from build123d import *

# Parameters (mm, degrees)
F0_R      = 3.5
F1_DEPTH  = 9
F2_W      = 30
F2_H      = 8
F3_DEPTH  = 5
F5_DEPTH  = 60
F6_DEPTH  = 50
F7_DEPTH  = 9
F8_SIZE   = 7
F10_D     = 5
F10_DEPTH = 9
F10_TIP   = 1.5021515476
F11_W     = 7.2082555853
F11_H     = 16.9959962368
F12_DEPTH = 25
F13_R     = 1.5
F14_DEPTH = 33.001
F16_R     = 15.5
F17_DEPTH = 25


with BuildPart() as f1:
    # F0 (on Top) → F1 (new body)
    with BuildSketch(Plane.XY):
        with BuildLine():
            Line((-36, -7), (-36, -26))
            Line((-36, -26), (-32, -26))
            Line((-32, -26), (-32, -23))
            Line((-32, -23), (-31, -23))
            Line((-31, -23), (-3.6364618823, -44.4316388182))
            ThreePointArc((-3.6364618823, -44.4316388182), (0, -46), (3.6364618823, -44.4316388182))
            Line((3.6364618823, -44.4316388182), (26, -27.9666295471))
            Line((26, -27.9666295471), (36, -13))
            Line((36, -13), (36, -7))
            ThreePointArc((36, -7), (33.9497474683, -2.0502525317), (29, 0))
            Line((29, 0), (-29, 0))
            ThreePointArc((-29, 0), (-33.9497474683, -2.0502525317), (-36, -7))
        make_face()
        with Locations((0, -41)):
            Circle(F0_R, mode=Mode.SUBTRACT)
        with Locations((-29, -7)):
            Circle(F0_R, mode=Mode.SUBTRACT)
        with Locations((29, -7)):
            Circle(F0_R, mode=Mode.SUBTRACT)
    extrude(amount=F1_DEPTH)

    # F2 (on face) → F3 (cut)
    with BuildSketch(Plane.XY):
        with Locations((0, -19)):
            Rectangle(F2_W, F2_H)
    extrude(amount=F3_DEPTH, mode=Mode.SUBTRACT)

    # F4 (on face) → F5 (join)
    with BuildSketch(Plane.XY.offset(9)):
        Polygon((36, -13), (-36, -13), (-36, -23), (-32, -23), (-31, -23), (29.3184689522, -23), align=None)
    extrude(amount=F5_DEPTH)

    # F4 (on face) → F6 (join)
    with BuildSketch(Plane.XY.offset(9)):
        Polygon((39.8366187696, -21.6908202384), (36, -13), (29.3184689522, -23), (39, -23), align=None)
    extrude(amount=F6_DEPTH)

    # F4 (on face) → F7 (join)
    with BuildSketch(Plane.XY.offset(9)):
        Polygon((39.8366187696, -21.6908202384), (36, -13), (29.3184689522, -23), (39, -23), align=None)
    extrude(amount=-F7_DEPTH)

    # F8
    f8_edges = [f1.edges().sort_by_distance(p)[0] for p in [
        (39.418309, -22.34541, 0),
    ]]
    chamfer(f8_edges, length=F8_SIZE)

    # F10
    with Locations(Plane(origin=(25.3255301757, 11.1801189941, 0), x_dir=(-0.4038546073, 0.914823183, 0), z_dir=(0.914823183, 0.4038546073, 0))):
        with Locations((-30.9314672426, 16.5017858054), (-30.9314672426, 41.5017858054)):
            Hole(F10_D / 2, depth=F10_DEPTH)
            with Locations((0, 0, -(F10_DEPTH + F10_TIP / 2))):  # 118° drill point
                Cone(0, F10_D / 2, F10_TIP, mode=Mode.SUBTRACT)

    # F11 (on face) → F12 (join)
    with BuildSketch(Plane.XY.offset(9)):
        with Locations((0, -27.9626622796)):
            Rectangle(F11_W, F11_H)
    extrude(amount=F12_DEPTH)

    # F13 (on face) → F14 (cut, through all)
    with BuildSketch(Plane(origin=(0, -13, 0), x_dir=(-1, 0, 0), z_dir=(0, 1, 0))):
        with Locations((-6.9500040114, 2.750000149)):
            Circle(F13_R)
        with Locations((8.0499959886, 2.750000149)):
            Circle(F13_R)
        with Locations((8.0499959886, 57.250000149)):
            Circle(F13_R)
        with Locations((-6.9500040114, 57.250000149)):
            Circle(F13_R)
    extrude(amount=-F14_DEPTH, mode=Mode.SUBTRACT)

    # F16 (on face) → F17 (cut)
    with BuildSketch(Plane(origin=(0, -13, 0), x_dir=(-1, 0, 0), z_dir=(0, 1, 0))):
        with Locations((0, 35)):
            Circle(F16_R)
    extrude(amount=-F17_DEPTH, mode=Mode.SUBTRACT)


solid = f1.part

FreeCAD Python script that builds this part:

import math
import FreeCAD as App
import Part
import Sketcher


def edges_at(feature, points):
    """Names of the edges that pass closest to the given points."""
    edges = feature.Shape.Edges
    near = lambda p: min(range(len(edges)), key=lambda i: edges[i].distToShape(Part.Vertex(*p))[0])
    return sorted({f"Edge{near(p) + 1}" for p in points})

doc = App.newDocument("Part")
body = doc.addObject("PartDesign::Body", "Body")

# Sketch on XY plane
sketch1 = doc.addObject("Sketcher::SketchObject", "Sketch")
body.addObject(sketch1)
sketch1.AttachmentSupport = (doc.XY_Plane, [""])
sketch1.MapMode = "FlatFace"
sketch1.addGeometry(Part.LineSegment(App.Vector(-36, -7, 0), App.Vector(-36, -26, 0)), False)
sketch1.addGeometry(Part.LineSegment(App.Vector(-36, -26, 0), App.Vector(-32, -26, 0)), False)
sketch1.addGeometry(Part.LineSegment(App.Vector(-32, -26, 0), App.Vector(-32, -23, 0)), False)
sketch1.addGeometry(Part.LineSegment(App.Vector(-32, -23, 0), App.Vector(-31, -23, 0)), False)
sketch1.addGeometry(Part.LineSegment(App.Vector(-31, -23, 0), App.Vector(-3.6, -44.4, 0)), False)
sketch1.addGeometry(Part.ArcOfCircle(Part.Circle(App.Vector(0, -41, 0), App.Vector(0, 0, 1), 5), math.radians(-137), math.radians(-43)), False)
sketch1.addGeometry(Part.LineSegment(App.Vector(3.6, -44.4, 0), App.Vector(26, -28, 0)), False)
sketch1.addGeometry(Part.LineSegment(App.Vector(26, -28, 0), App.Vector(36, -13, 0)), False)
sketch1.addGeometry(Part.LineSegment(App.Vector(36, -13, 0), App.Vector(36, -7, 0)), False)
sketch1.addGeometry(Part.ArcOfCircle(Part.Circle(App.Vector(29, -7, 0), App.Vector(0, 0, 1), 7), math.radians(0), math.radians(90)), False)
sketch1.addGeometry(Part.LineSegment(App.Vector(29, 0, 0), App.Vector(-29, 0, 0)), False)
sketch1.addGeometry(Part.ArcOfCircle(Part.Circle(App.Vector(-29, -7, 0), App.Vector(0, 0, 1), 7), math.radians(90), math.radians(180)), False)
sketch1.addGeometry(Part.Circle(App.Vector(0, -41, 0), App.Vector(0, 0, 1), 3.5), False)
sketch1.addGeometry(Part.Circle(App.Vector(-29, -7, 0), App.Vector(0, 0, 1), 3.5), False)
sketch1.addGeometry(Part.Circle(App.Vector(29, -7, 0), App.Vector(0, 0, 1), 3.5), False)
sketch1.addConstraint(Sketcher.Constraint("Coincident", 0, 2, 1, 1))
sketch1.addConstraint(Sketcher.Constraint("Coincident", 1, 2, 2, 1))
sketch1.addConstraint(Sketcher.Constraint("Coincident", 2, 2, 3, 1))
sketch1.addConstraint(Sketcher.Constraint("Coincident", 3, 2, 4, 1))
sketch1.addConstraint(Sketcher.Constraint("Coincident", 4, 2, 5, 1))
sketch1.addConstraint(Sketcher.Constraint("Coincident", 5, 2, 6, 1))
sketch1.addConstraint(Sketcher.Constraint("Coincident", 6, 2, 7, 1))
sketch1.addConstraint(Sketcher.Constraint("Coincident", 7, 2, 8, 1))
sketch1.addConstraint(Sketcher.Constraint("Tangent", 8, 2, 9, 1))
sketch1.addConstraint(Sketcher.Constraint("Tangent", 9, 2, 10, 1))
sketch1.addConstraint(Sketcher.Constraint("Tangent", 10, 2, 11, 1))
sketch1.addConstraint(Sketcher.Constraint("Tangent", 11, 2, 0, 1))
sketch1.addConstraint(Sketcher.Constraint("Vertical", 0))
sketch1.addConstraint(Sketcher.Constraint("Horizontal", 1))
sketch1.addConstraint(Sketcher.Constraint("Vertical", 2))
sketch1.addConstraint(Sketcher.Constraint("Horizontal", 3))
sketch1.addConstraint(Sketcher.Constraint("Vertical", 8))
sketch1.addConstraint(Sketcher.Constraint("Horizontal", 10))
sketch1.addConstraint(Sketcher.Constraint("Coincident", 12, 3, 5, 3))
sketch1.addConstraint(Sketcher.Constraint("Coincident", 13, 3, 11, 3))
sketch1.addConstraint(Sketcher.Constraint("Coincident", 14, 3, 9, 3))
sketch1.addConstraint(Sketcher.Constraint("Equal", 9, 11))
sketch1.addConstraint(Sketcher.Constraint("Equal", 12, 13))
sketch1.addConstraint(Sketcher.Constraint("Equal", 13, 14))
sketch1.addConstraint(Sketcher.Constraint("Symmetric", 9, 2, 10, 2, -1, 1))
sketch1.addConstraint(Sketcher.Constraint("Symmetric", 4, 2, 5, 2, -2))
sketch1.addConstraint(Sketcher.Constraint("Diameter", 12, 7.0))
sketch1.addConstraint(Sketcher.Constraint("Radius", 5, 5.0))
sketch1.addConstraint(Sketcher.Constraint("Radius", 9, 7.0))
sketch1.addConstraint(Sketcher.Constraint("DistanceX", 1, 1, 1, 2, 4.0))
sketch1.addConstraint(Sketcher.Constraint("DistanceX", 3, 1, 3, 2, 1.0))
sketch1.addConstraint(Sketcher.Constraint("DistanceX", 10, 2, 10, 1, 58.0))
sketch1.addConstraint(Sketcher.Constraint("DistanceY", 0, 2, 0, 1, 19.0))
sketch1.addConstraint(Sketcher.Constraint("DistanceY", 2, 1, 2, 2, 3.0))
sketch1.addConstraint(Sketcher.Constraint("DistanceY", 8, 1, 8, 2, 6.0))
sketch1.addConstraint(Sketcher.Constraint("Distance", 7, 18.0))
sketch1.addConstraint(Sketcher.Constraint("DistanceY", 5, 3, -1, 1, 41.0))
sketch1.addConstraint(Sketcher.Constraint("DistanceX", -1, 1, 6, 2, 26.0))
sketch1.addConstraint(Sketcher.Constraint("Distance", 4, 34.757422))
pad1 = doc.addObject("PartDesign::Pad", "Pad")
body.addObject(pad1)
pad1.Profile = sketch1
pad1.Length = 9

# Sketch on XY plane
sketch2 = doc.addObject("Sketcher::SketchObject", "Sketch001")
body.addObject(sketch2)
sketch2.AttachmentSupport = (doc.XY_Plane, [""])
sketch2.MapMode = "FlatFace"
sketch2.addGeometry(Part.LineSegment(App.Vector(-15, -15, 0), App.Vector(-15, -23, 0)), False)
sketch2.addGeometry(Part.LineSegment(App.Vector(-15, -23, 0), App.Vector(15, -23, 0)), False)
sketch2.addGeometry(Part.LineSegment(App.Vector(15, -23, 0), App.Vector(15, -15, 0)), False)
sketch2.addGeometry(Part.LineSegment(App.Vector(15, -15, 0), App.Vector(-15, -15, 0)), False)
sketch2.addConstraint(Sketcher.Constraint("Coincident", 0, 2, 1, 1))
sketch2.addConstraint(Sketcher.Constraint("Coincident", 1, 2, 2, 1))
sketch2.addConstraint(Sketcher.Constraint("Coincident", 2, 2, 3, 1))
sketch2.addConstraint(Sketcher.Constraint("Coincident", 3, 2, 0, 1))
sketch2.addConstraint(Sketcher.Constraint("Vertical", 0))
sketch2.addConstraint(Sketcher.Constraint("Horizontal", 1))
sketch2.addConstraint(Sketcher.Constraint("Vertical", 2))
sketch2.addConstraint(Sketcher.Constraint("Horizontal", 3))
sketch2.addConstraint(Sketcher.Constraint("DistanceX", 1, 1, 1, 2, 30.0))
sketch2.addConstraint(Sketcher.Constraint("DistanceY", 0, 2, 0, 1, 8.0))
sketch2.addConstraint(Sketcher.Constraint("DistanceX", 0, 2, -1, 1, 15.0))
sketch2.addConstraint(Sketcher.Constraint("DistanceY", 0, 2, -1, 1, 23.0))
pocket1 = doc.addObject("PartDesign::Pocket", "Pocket")
body.addObject(pocket1)
pocket1.Profile = sketch2
pocket1.Length = 5
pocket1.Reversed = True

# Sketch on XY plane
sketch3 = doc.addObject("Sketcher::SketchObject", "Sketch002")
body.addObject(sketch3)
sketch3.AttachmentSupport = (doc.XY_Plane, [""])
sketch3.MapMode = "FlatFace"
sketch3.AttachmentOffset = App.Placement(App.Vector(0, 0, 9), App.Rotation())
sketch3.addGeometry(Part.LineSegment(App.Vector(36, -13, 0), App.Vector(-36, -13, 0)), False)
sketch3.addGeometry(Part.LineSegment(App.Vector(-36, -13, 0), App.Vector(-36, -23, 0)), False)
sketch3.addGeometry(Part.LineSegment(App.Vector(-36, -23, 0), App.Vector(29, -23, 0)), False)
sketch3.addGeometry(Part.LineSegment(App.Vector(29, -23, 0), App.Vector(36, -13, 0)), False)
sketch3.addConstraint(Sketcher.Constraint("Coincident", 0, 2, 1, 1))
sketch3.addConstraint(Sketcher.Constraint("Coincident", 1, 2, 2, 1))
sketch3.addConstraint(Sketcher.Constraint("Coincident", 2, 2, 3, 1))
sketch3.addConstraint(Sketcher.Constraint("Coincident", 3, 2, 0, 1))
sketch3.addConstraint(Sketcher.Constraint("Horizontal", 0))
sketch3.addConstraint(Sketcher.Constraint("Vertical", 1))
sketch3.addConstraint(Sketcher.Constraint("Horizontal", 2))
sketch3.addConstraint(Sketcher.Constraint("DistanceX", 0, 2, 0, 1, 72.0))
sketch3.addConstraint(Sketcher.Constraint("DistanceY", 1, 2, 1, 1, 10.0))
sketch3.addConstraint(Sketcher.Constraint("DistanceX", 0, 2, -1, 1, 36.0))
sketch3.addConstraint(Sketcher.Constraint("DistanceY", 0, 2, -1, 1, 13.0))
sketch3.addConstraint(Sketcher.Constraint("DistanceX", 2, 1, 2, 2, 65.318469))
pad2 = doc.addObject("PartDesign::Pad", "Pad001")
body.addObject(pad2)
pad2.Profile = sketch3
pad2.Length = 60

# Sketch on XY plane
sketch4 = doc.addObject("Sketcher::SketchObject", "Sketch003")
body.addObject(sketch4)
sketch4.AttachmentSupport = (doc.XY_Plane, [""])
sketch4.MapMode = "FlatFace"
sketch4.AttachmentOffset = App.Placement(App.Vector(0, 0, 9), App.Rotation())
sketch4.addGeometry(Part.LineSegment(App.Vector(39.8, -21.7, 0), App.Vector(36, -13, 0)), False)
sketch4.addGeometry(Part.LineSegment(App.Vector(36, -13, 0), App.Vector(29.3, -23, 0)), False)
sketch4.addGeometry(Part.LineSegment(App.Vector(29.3, -23, 0), App.Vector(39, -23, 0)), False)
sketch4.addGeometry(Part.LineSegment(App.Vector(39, -23, 0), App.Vector(39.8, -21.7, 0)), False)
sketch4.addConstraint(Sketcher.Constraint("Coincident", 0, 2, 1, 1))
sketch4.addConstraint(Sketcher.Constraint("Coincident", 1, 2, 2, 1))
sketch4.addConstraint(Sketcher.Constraint("Coincident", 2, 2, 3, 1))
sketch4.addConstraint(Sketcher.Constraint("Coincident", 3, 2, 0, 1))
sketch4.addConstraint(Sketcher.Constraint("Horizontal", 2))
sketch4.addConstraint(Sketcher.Constraint("DistanceX", -1, 1, 0, 2, 36.0))
sketch4.addConstraint(Sketcher.Constraint("DistanceY", 0, 2, -1, 1, 13.0))
sketch4.addConstraint(Sketcher.Constraint("DistanceY", 1, 2, -1, 1, 23.0))
sketch4.addConstraint(Sketcher.Constraint("DistanceX", -1, 1, 2, 2, 39.0))
sketch4.addConstraint(Sketcher.Constraint("Distance", 0, 9.5))
sketch4.addConstraint(Sketcher.Constraint("DistanceX", 2, 1, 2, 2, 9.681531))
sketch4.addConstraint(Sketcher.Constraint("DistanceX", -1, 1, 3, 2, 39.836619))
pad3 = doc.addObject("PartDesign::Pad", "Pad002")
body.addObject(pad3)
pad3.Profile = sketch4
pad3.Length = 50

# Sketch on XY plane
sketch5 = doc.addObject("Sketcher::SketchObject", "Sketch004")
body.addObject(sketch5)
sketch5.AttachmentSupport = (doc.XY_Plane, [""])
sketch5.MapMode = "FlatFace"
sketch5.AttachmentOffset = App.Placement(App.Vector(0, 0, 9), App.Rotation())
sketch5.addGeometry(Part.LineSegment(App.Vector(39.8, -21.7, 0), App.Vector(36, -13, 0)), False)
sketch5.addGeometry(Part.LineSegment(App.Vector(36, -13, 0), App.Vector(29.3, -23, 0)), False)
sketch5.addGeometry(Part.LineSegment(App.Vector(29.3, -23, 0), App.Vector(39, -23, 0)), False)
sketch5.addGeometry(Part.LineSegment(App.Vector(39, -23, 0), App.Vector(39.8, -21.7, 0)), False)
sketch5.addConstraint(Sketcher.Constraint("Coincident", 0, 2, 1, 1))
sketch5.addConstraint(Sketcher.Constraint("Coincident", 1, 2, 2, 1))
sketch5.addConstraint(Sketcher.Constraint("Coincident", 2, 2, 3, 1))
sketch5.addConstraint(Sketcher.Constraint("Coincident", 3, 2, 0, 1))
sketch5.addConstraint(Sketcher.Constraint("Horizontal", 2))
sketch5.addConstraint(Sketcher.Constraint("DistanceX", -1, 1, 0, 2, 36.0))
sketch5.addConstraint(Sketcher.Constraint("DistanceY", 0, 2, -1, 1, 13.0))
sketch5.addConstraint(Sketcher.Constraint("DistanceY", 1, 2, -1, 1, 23.0))
sketch5.addConstraint(Sketcher.Constraint("DistanceX", -1, 1, 2, 2, 39.0))
sketch5.addConstraint(Sketcher.Constraint("Distance", 0, 9.5))
sketch5.addConstraint(Sketcher.Constraint("DistanceX", 2, 1, 2, 2, 9.681531))
sketch5.addConstraint(Sketcher.Constraint("DistanceX", -1, 1, 3, 2, 39.836619))
pad4 = doc.addObject("PartDesign::Pad", "Pad003")
body.addObject(pad4)
pad4.Profile = sketch5
pad4.Length = 9
pad4.Reversed = True
doc.recompute()

chamfer = doc.addObject("PartDesign::Chamfer", "Chamfer")
body.addObject(chamfer)
chamfer.Base = (pad4, edges_at(pad4, [(39.418, -22.345, 0)]))
chamfer.Size = 7

# Sketch on an angled plane
sketch6 = doc.addObject("Sketcher::SketchObject", "Sketch005")
body.addObject(sketch6)
sketch6.Placement = App.Placement(App.Vector(25.32553, 11.180119, 0), App.Rotation(App.Vector(-0.403854607, 0.914823183, 0), App.Vector(0, 0, 1), App.Vector(0.914823183, 0.403854607, 0), "ZXY"))
sketch6.addGeometry(Part.Circle(App.Vector(-30.9, 16.5, 0), App.Vector(0, 0, 1), 2.5), False)
sketch6.addGeometry(Part.Circle(App.Vector(-30.9, 41.5, 0), App.Vector(0, 0, 1), 2.5), False)
sketch6.addConstraint(Sketcher.Constraint("Equal", 0, 1))
sketch6.addConstraint(Sketcher.Constraint("Vertical", 0, 3, 1, 3))
sketch6.addConstraint(Sketcher.Constraint("Diameter", 0, 5.0))
sketch6.addConstraint(Sketcher.Constraint("DistanceY", 0, 3, 1, 3, 25.0))
sketch6.addConstraint(Sketcher.Constraint("DistanceX", 0, 3, -1, 1, 30.931467))
sketch6.addConstraint(Sketcher.Constraint("DistanceY", -1, 1, 0, 3, 16.501786))
doc.recompute()
hole = doc.addObject("PartDesign::Hole", "Hole")
body.addObject(hole)
hole.Profile = sketch6
hole.ThreadType = "None"
hole.Diameter = 5
hole.DepthType = "Dimension"
hole.Depth = 9
hole.DrillPoint = "Angled"
hole.DrillPointAngle = 118

# Sketch on XY plane
sketch7 = doc.addObject("Sketcher::SketchObject", "Sketch006")
body.addObject(sketch7)
sketch7.AttachmentSupport = (doc.XY_Plane, [""])
sketch7.MapMode = "FlatFace"
sketch7.AttachmentOffset = App.Placement(App.Vector(0, 0, 9), App.Rotation())
sketch7.addGeometry(Part.LineSegment(App.Vector(-4, -19, 0), App.Vector(-4, -36, 0)), False)
sketch7.addGeometry(Part.LineSegment(App.Vector(-4, -36, 0), App.Vector(4, -36, 0)), False)
sketch7.addGeometry(Part.LineSegment(App.Vector(4, -36, 0), App.Vector(4, -19, 0)), False)
sketch7.addGeometry(Part.LineSegment(App.Vector(4, -19, 0), App.Vector(-4, -19, 0)), False)
sketch7.addConstraint(Sketcher.Constraint("Coincident", 0, 2, 1, 1))
sketch7.addConstraint(Sketcher.Constraint("Coincident", 1, 2, 2, 1))
sketch7.addConstraint(Sketcher.Constraint("Coincident", 2, 2, 3, 1))
sketch7.addConstraint(Sketcher.Constraint("Coincident", 3, 2, 0, 1))
sketch7.addConstraint(Sketcher.Constraint("Vertical", 0))
sketch7.addConstraint(Sketcher.Constraint("Horizontal", 1))
sketch7.addConstraint(Sketcher.Constraint("Vertical", 2))
sketch7.addConstraint(Sketcher.Constraint("Horizontal", 3))
sketch7.addConstraint(Sketcher.Constraint("DistanceX", 1, 1, 1, 2, 7.208256))
sketch7.addConstraint(Sketcher.Constraint("DistanceY", 0, 2, 0, 1, 16.995996))
sketch7.addConstraint(Sketcher.Constraint("DistanceY", 0, 2, -1, 1, 36.46066))
sketch7.addConstraint(Sketcher.Constraint("DistanceX", 0, 2, -1, 1, 3.604128))
pad5 = doc.addObject("PartDesign::Pad", "Pad004")
body.addObject(pad5)
pad5.Profile = sketch7
pad5.Length = 25

# Sketch on XZ plane
sketch8 = doc.addObject("Sketcher::SketchObject", "Sketch007")
body.addObject(sketch8)
sketch8.AttachmentSupport = (doc.XZ_Plane, [""])
sketch8.MapMode = "FlatFace"
sketch8.AttachmentOffset = App.Placement(App.Vector(0, 0, 13), App.Rotation())
sketch8.addGeometry(Part.Circle(App.Vector(7, 2.8, 0), App.Vector(0, 0, 1), 1.5), False)
sketch8.addGeometry(Part.Circle(App.Vector(-8, 2.8, 0), App.Vector(0, 0, 1), 1.5), False)
sketch8.addGeometry(Part.Circle(App.Vector(-8, 57.3, 0), App.Vector(0, 0, 1), 1.5), False)
sketch8.addGeometry(Part.Circle(App.Vector(7, 57.3, 0), App.Vector(0, 0, 1), 1.5), False)
sketch8.addConstraint(Sketcher.Constraint("Equal", 0, 1))
sketch8.addConstraint(Sketcher.Constraint("Equal", 1, 2))
sketch8.addConstraint(Sketcher.Constraint("Equal", 2, 3))
sketch8.addConstraint(Sketcher.Constraint("Horizontal", 0, 3, 1, 3))
sketch8.addConstraint(Sketcher.Constraint("Horizontal", 2, 3, 3, 3))
sketch8.addConstraint(Sketcher.Constraint("Vertical", 1, 3, 2, 3))
sketch8.addConstraint(Sketcher.Constraint("Vertical", 0, 3, 3, 3))
sketch8.addConstraint(Sketcher.Constraint("Diameter", 0, 3.0))
sketch8.addConstraint(Sketcher.Constraint("DistanceX", 1, 3, 0, 3, 15.0))
sketch8.addConstraint(Sketcher.Constraint("DistanceY", 1, 3, 2, 3, 54.5))
sketch8.addConstraint(Sketcher.Constraint("DistanceY", -1, 1, 0, 3, 2.75))
sketch8.addConstraint(Sketcher.Constraint("DistanceX", -1, 1, 0, 3, 6.950004))
pocket2 = doc.addObject("PartDesign::Pocket", "Pocket001")
body.addObject(pocket2)
pocket2.Profile = sketch8
pocket2.Type = "ThroughAll"
pocket2.Reversed = True

# Sketch on XZ plane
sketch9 = doc.addObject("Sketcher::SketchObject", "Sketch008")
body.addObject(sketch9)
sketch9.AttachmentSupport = (doc.XZ_Plane, [""])
sketch9.MapMode = "FlatFace"
sketch9.AttachmentOffset = App.Placement(App.Vector(0, 0, 13), App.Rotation())
sketch9.addGeometry(Part.Circle(App.Vector(0, 35, 0), App.Vector(0, 0, 1), 16), False)
sketch9.addConstraint(Sketcher.Constraint("PointOnObject", 0, 3, -2))
sketch9.addConstraint(Sketcher.Constraint("Diameter", 0, 31.0))
sketch9.addConstraint(Sketcher.Constraint("DistanceY", -1, 1, 0, 3, 35.0))
pocket3 = doc.addObject("PartDesign::Pocket", "Pocket002")
body.addObject(pocket3)
pocket3.Profile = sketch9
pocket3.Length = 25
pocket3.Reversed = True

doc.recompute()
